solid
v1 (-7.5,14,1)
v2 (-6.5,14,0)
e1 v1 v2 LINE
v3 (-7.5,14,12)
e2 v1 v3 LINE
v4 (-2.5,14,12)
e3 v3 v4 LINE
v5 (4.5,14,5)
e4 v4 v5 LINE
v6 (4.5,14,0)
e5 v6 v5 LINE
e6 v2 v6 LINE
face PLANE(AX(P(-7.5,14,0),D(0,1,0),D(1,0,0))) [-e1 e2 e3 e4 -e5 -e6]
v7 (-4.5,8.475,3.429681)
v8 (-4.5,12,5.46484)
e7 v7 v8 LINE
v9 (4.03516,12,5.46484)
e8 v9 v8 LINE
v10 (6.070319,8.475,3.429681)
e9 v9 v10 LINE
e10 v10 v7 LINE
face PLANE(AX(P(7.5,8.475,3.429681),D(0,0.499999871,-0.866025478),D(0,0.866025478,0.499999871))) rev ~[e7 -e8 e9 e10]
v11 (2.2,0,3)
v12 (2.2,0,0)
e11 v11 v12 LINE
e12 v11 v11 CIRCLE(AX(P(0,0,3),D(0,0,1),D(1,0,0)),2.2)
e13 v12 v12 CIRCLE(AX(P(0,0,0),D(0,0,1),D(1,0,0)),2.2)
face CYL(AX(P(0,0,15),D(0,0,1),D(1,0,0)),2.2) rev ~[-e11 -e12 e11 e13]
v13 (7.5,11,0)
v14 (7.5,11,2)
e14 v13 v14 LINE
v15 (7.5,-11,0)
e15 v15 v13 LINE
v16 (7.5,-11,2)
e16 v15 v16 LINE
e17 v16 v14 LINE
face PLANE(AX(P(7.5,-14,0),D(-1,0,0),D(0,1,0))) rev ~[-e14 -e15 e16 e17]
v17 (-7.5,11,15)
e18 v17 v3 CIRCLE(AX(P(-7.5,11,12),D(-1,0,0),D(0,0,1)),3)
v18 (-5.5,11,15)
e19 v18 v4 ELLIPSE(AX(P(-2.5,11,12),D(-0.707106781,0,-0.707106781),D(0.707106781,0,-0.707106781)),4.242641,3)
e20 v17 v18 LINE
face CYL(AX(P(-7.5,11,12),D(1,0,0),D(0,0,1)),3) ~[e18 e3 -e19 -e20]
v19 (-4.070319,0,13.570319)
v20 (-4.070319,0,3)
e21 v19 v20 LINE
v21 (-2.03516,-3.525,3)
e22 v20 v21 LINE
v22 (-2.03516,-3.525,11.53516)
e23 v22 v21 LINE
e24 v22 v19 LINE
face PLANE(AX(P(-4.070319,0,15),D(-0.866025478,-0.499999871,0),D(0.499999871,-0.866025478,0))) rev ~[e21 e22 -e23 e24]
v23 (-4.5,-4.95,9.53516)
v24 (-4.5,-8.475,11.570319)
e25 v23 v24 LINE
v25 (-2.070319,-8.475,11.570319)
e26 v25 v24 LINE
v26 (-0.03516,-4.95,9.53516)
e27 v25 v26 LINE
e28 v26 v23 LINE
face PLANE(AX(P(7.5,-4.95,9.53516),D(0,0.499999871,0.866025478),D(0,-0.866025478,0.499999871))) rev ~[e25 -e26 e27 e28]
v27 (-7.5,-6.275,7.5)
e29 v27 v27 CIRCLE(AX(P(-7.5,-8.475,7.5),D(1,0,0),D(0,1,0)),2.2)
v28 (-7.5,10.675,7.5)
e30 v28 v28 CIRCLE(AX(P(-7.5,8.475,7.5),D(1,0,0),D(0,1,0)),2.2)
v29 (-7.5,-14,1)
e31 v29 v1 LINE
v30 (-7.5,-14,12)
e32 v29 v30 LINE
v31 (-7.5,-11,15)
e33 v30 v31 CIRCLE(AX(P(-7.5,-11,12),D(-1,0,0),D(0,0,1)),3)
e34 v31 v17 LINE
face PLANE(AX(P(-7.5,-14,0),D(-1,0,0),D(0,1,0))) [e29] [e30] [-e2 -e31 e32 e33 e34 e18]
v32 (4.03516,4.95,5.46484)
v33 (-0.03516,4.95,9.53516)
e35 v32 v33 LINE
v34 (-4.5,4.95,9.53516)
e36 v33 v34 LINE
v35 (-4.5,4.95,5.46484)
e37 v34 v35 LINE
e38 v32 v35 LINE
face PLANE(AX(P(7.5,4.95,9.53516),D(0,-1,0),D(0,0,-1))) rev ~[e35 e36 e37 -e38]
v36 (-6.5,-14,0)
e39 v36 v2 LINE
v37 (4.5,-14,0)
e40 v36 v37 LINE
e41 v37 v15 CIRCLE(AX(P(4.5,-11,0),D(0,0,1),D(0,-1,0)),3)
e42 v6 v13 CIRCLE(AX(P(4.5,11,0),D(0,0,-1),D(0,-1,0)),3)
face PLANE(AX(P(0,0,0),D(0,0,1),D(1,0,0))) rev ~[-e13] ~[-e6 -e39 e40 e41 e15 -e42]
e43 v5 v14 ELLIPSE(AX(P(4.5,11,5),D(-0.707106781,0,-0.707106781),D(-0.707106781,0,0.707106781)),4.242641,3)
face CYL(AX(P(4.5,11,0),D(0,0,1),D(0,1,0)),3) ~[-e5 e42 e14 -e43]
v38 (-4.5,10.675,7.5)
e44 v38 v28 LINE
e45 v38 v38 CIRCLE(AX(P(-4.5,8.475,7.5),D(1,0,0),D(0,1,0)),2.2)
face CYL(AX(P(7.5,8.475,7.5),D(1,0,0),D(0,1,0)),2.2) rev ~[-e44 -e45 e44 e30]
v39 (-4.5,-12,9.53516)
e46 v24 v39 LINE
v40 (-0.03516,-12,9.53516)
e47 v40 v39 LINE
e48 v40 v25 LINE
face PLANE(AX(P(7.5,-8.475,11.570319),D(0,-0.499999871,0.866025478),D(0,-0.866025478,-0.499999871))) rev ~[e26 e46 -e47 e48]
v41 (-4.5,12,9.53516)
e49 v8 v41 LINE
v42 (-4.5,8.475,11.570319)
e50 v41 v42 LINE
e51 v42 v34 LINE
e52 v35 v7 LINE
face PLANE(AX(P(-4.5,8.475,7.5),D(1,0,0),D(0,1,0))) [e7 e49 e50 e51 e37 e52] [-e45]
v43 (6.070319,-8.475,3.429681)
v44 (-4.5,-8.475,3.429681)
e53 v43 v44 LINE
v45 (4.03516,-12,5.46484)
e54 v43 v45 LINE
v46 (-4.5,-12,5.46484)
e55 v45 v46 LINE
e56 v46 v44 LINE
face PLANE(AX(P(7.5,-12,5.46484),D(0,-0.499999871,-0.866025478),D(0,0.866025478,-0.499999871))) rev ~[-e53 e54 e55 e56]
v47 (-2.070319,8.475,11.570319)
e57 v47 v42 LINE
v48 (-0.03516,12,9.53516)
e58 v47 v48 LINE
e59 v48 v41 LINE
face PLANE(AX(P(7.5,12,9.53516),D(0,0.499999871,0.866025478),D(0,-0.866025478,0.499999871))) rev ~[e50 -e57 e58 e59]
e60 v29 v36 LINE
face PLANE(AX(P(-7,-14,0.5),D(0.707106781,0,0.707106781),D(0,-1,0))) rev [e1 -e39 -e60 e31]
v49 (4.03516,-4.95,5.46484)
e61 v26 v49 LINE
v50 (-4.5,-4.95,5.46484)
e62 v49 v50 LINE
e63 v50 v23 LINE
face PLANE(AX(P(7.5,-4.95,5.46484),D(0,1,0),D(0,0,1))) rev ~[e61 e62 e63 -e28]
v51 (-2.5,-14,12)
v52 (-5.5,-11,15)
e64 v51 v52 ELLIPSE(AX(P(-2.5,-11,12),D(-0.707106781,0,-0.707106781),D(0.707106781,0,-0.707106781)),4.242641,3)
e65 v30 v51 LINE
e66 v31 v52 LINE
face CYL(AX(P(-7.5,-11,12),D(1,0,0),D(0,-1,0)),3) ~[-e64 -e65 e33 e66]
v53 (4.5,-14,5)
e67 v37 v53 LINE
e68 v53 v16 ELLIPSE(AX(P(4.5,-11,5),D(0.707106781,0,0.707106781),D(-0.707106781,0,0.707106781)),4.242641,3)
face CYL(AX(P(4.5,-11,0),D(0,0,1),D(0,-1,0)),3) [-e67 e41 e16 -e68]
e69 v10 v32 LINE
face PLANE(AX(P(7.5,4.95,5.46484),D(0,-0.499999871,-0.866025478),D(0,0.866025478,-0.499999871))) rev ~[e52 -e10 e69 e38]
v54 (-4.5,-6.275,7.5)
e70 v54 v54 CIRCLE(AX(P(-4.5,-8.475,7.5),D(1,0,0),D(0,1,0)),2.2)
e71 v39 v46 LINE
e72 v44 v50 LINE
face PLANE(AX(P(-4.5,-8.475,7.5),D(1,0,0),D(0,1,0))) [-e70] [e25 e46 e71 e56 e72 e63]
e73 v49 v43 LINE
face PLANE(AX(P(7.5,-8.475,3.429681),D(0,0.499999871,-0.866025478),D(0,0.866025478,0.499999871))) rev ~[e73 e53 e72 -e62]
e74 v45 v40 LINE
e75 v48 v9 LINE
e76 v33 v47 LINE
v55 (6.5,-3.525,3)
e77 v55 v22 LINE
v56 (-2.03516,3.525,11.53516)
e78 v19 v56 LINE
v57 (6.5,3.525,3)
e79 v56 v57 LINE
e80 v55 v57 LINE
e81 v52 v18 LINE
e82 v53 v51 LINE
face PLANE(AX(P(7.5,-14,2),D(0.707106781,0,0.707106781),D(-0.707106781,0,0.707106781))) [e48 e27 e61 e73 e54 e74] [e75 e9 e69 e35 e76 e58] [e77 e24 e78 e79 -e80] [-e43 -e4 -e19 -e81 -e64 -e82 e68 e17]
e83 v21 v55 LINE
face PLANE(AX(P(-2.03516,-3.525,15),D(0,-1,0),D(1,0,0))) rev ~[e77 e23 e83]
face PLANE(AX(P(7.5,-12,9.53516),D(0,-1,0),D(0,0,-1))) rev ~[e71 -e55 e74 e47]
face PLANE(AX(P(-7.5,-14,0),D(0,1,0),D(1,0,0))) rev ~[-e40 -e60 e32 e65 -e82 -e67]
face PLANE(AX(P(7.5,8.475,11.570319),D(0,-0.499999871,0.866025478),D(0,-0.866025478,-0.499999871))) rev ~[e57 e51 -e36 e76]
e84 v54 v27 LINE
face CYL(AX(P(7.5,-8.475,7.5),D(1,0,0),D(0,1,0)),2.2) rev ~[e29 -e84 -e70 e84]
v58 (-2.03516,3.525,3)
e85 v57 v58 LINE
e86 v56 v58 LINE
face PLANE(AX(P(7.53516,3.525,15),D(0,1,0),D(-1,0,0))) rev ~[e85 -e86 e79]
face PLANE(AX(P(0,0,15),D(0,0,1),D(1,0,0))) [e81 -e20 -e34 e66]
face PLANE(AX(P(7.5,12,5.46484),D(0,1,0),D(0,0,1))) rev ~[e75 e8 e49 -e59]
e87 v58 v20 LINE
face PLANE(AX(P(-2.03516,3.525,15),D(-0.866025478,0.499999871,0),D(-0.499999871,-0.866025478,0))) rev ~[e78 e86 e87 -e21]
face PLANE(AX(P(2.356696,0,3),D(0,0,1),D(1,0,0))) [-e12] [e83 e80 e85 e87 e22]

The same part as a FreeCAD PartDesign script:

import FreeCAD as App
import Part
import Sketcher
from FreeCAD import Vector
Q = App.Units.Quantity


def edges_at(feature, points):
    """Names of the edges that pass closest to the given points."""
    edges = feature.Shape.Edges
    near = lambda p: min(range(len(edges)), key=lambda i: edges[i].distToShape(Part.Vertex(*p))[0])
    return sorted({f"Edge{near(p) + 1}" for p in points})


def add_polygon(sketch, points):
    """Adds a closed chain of lines whose ends are joined by coincident constraints."""
    first, n = sketch.GeometryCount, len(points)
    for a, b in zip(points, points[1:] + points[:1]):
        sketch.addGeometry(Part.LineSegment(App.Vector(*a, 0), App.Vector(*b, 0)), False)
    for i in range(n):
        sketch.addConstraint(Sketcher.Constraint("Coincident", first + i, 2, first + (i + 1) % n, 1))

doc = App.newDocument("Part")
body = doc.addObject("PartDesign::Body", "Body")

# Sketch on XY plane
sketch1 = body.newObject("Sketcher::SketchObject", "Sketch")
sketch1.AttachmentSupport = (doc.getObject("XY_Plane"), [""])
sketch1.MapMode = "FlatFace"
add_polygon(sketch1, [(-7.5, 14), (-7.5, -14), (7.5, -14), (7.5, 14)])  # lines 0-3
sketch1.addConstraint([
    Sketcher.Constraint("Vertical", 0),
    Sketcher.Constraint("Horizontal", 1),
    Sketcher.Constraint("Vertical", 2),
    Sketcher.Constraint("Horizontal", 3),
    Sketcher.Constraint("Symmetric", 0, 2, 2, 2, -1, 1),
    Sketcher.Constraint("DistanceX", 1, 1, 1, 2, 15.0),
    Sketcher.Constraint("DistanceY", 0, 2, 0, 1, 28.0),
])
pad1 = body.newObject("PartDesign::Pad", "Pad")
pad1.Profile = sketch1
pad1.Length = 15

# Sketch on YZ plane
sketch2 = body.newObject("Sketcher::SketchObject", "Sketch001")
sketch2.AttachmentSupport = (doc.getObject("YZ_Plane"), [""])
sketch2.MapMode = "FlatFace"
sketch2.AttachmentOffset = App.Placement(Vector(0, 0, 7.5), App.Rotation())
sketch2.addGeometry([
    Part.Circle(Vector(-8.475, 7.5, 0), Vector(0, 0, 1), 2.2),
    Part.Circle(Vector(8.475, 7.5, 0), Vector(0, 0, 1), 2.2),
], False)
sketch2.addConstraint([
    Sketcher.Constraint("Equal", 0, 1),
    Sketcher.Constraint("Symmetric", 0, 3, 1, 3, -2),
    Sketcher.Constraint("Diameter", 0, 4.4),
    Sketcher.Constraint("DistanceY", -1, 1, 0, 3, 7.5),
    Sketcher.Constraint("DistanceX", 0, 3, 1, 3, 16.95),
])
pocket1 = body.newObject("PartDesign::Pocket", "Pocket")
pocket1.Profile = sketch2
pocket1.Type = "ThroughAll"

# Sketch on YZ plane
sketch3 = body.newObject("Sketcher::SketchObject", "Sketch002")
sketch3.AttachmentSupport = (doc.getObject("YZ_Plane"), [""])
sketch3.MapMode = "FlatFace"
sketch3.AttachmentOffset = App.Placement(Vector(0, 0, 7.5), App.Rotation())
add_polygon(sketch3, [(-8.475, 3.429681), (-4.95, 5.46484), (-4.95, 9.53516), (-8.475, 11.570319), (-12, 9.53516), (-12, 5.46484)])  # lines 0-5
add_polygon(sketch3, [(8.475, 3.429681), (12, 5.46484), (12, 9.53516), (8.475, 11.570319), (4.95, 9.53516), (4.95, 5.46484)])  # lines 6-11
sketch3.addConstraint([
    Sketcher.Constraint("Vertical", 1),
    Sketcher.Constraint("Vertical", 4),
    Sketcher.Constraint("Vertical", 7),
    Sketcher.Constraint("Vertical", 10),
    Sketcher.Constraint("Symmetric", 4, 2, 6, 2, -2),
    Sketcher.Constraint("Symmetric", 2, 2, 8, 2, -2),
    Sketcher.Constraint("Symmetric", 1, 2, 9, 2, -2),
    Sketcher.Constraint("Symmetric", 5, 2, 11, 2, -2),
    Sketcher.Constraint("Parallel", 0, 3),
    Sketcher.Constraint("Parallel", 2, 5),
    Sketcher.Constraint("Parallel", 3, 6),
    Sketcher.Constraint("Parallel", 5, 8),
    Sketcher.Constraint("Parallel", 8, 11),
    Sketcher.Constraint("Horizontal", 1, 2, 3, 2),
    Sketcher.Constraint("Horizontal", 0, 2, 4, 2),
    Sketcher.Constraint("Angle", 0, Q("29.999991 deg")),
    Sketcher.Constraint("DistanceX", 3, 2, -1, 1, 12.0),
    Sketcher.Constraint("DistanceX", 1, 2, 9, 2, 9.9),
    Sketcher.Constraint("DistanceY", 1, 1, 1, 2, 4.07032),
    Sketcher.Constraint("DistanceY", -1, 1, 0, 2, 5.46484),
])
pocket2 = body.newObject("PartDesign::Pocket", "Pocket001")
pocket2.Profile = sketch3
pocket2.Length = 12

# Sketch on XY plane
sketch4 = body.newObject("Sketcher::SketchObject", "Sketch003")
sketch4.AttachmentSupport = (doc.getObject("XY_Plane"), [""])
sketch4.MapMode = "FlatFace"
sketch4.AttachmentOffset = App.Placement(Vector(0, 0, 15), App.Rotation())
sketch4.addGeometry(Part.Circle(Vector(0, 0, 0), Vector(0, 0, 1), 2.2), False)
sketch4.addConstraint([
    Sketcher.Constraint("Coincident", 0, 3, -1, 1),
    Sketcher.Constraint("Diameter", 0, 4.4),
])
pocket3 = body.newObject("PartDesign::Pocket", "Pocket002")
pocket3.Profile = sketch4
pocket3.Type = "ThroughAll"

# Sketch on XY plane
sketch5 = body.newObject("Sketcher::SketchObject", "Sketch004")
sketch5.AttachmentSupport = (doc.getObject("XY_Plane"), [""])
sketch5.MapMode = "FlatFace"
sketch5.AttachmentOffset = App.Placement(Vector(0, 0, 15), App.Rotation())
add_polygon(sketch5, [(-2.03516, 3.525), (-4.070319, 0), (-2.03516, -3.525), (7.53516, -3.525), (7.53516, 3.525)])  # lines 0-4
sketch5.addConstraint([
    Sketcher.Constraint("Horizontal", 2),
    Sketcher.Constraint("Vertical", 3),
    Sketcher.Constraint("Horizontal", 4),
    Sketcher.Constraint("Symmetric", 1, 2, 4, 2, -1),
    Sketcher.Constraint("PointOnObject", 0, 2, -1),
    Sketcher.Constraint("Angle", 0, Q("-119.999991 deg")),
    Sketcher.Constraint("DistanceY", 3, 1, 3, 2, 7.05),
    Sketcher.Constraint("DistanceX", 2, 1, 2, 2, 9.57032),
    Sketcher.Constraint("DistanceX", 0, 2, -1, 1, 4.070319),
])
pocket4 = body.newObject("PartDesign::Pocket", "Pocket003")
pocket4.Profile = sketch5
pocket4.Length = 12

# Sketch on XZ plane
sketch6 = body.newObject("Sketcher::SketchObject", "Sketch005")
sketch6.AttachmentSupport = (doc.getObject("XZ_Plane"), [""])
sketch6.MapMode = "FlatFace"
sketch6.AttachmentOffset = App.Placement(Vector(0, 0, 14), App.Rotation())
add_polygon(sketch6, [(7.5, 2), (7.5, 15), (-5.5, 15)])  # lines 0-2
sketch6.addConstraint([
    Sketcher.Constraint("Vertical", 0),
    Sketcher.Constraint("Horizontal", 1),
    Sketcher.Constraint("Equal", 1, 0),
    Sketcher.Constraint("DistanceX", 1, 2, 1, 1, 13.0),
    Sketcher.Constraint("DistanceY", -1, 1, 0, 2, 15.0),
    Sketcher.Constraint("DistanceX", -1, 1, 0, 2, 7.5),
])
pocket5 = body.newObject("PartDesign::Pocket", "Pocket004")
pocket5.Profile = sketch6
pocket5.Type = "ThroughAll"
doc.recompute()

fillet = body.newObject("PartDesign::Fillet", "Fillet")
fillet.Base = (pocket5, edges_at(pocket5, [
    (7.5, 14, 1),
    (7.5, -14, 1),
    (-6.5, -14, 15),
    (-6.5, 14, 15),
]))
fillet.Radius = 3
doc.recompute()

chamfer = body.newObject("PartDesign::Chamfer", "Chamfer")
chamfer.Base = (fillet, edges_at(fillet, [(-7.5, 0, 0)]))
chamfer.Size = 1

doc.recompute()
